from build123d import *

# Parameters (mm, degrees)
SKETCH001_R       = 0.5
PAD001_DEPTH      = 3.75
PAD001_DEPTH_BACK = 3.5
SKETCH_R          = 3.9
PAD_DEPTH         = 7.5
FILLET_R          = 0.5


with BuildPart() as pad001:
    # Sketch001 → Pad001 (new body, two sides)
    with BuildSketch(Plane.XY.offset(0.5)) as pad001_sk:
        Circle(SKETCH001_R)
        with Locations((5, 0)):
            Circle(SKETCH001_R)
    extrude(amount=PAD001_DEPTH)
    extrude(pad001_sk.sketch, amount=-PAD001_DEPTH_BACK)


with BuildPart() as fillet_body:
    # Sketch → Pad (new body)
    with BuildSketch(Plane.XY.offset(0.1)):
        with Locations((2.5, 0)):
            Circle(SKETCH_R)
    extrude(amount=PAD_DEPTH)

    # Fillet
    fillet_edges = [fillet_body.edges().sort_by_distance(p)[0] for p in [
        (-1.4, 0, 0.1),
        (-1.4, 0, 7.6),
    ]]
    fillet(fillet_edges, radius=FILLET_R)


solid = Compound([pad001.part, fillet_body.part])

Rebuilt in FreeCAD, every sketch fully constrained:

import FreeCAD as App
import Part
import Sketcher
from FreeCAD import Vector


def edges_at(feature, points):
    """Names of the edges that pass closest to the given points."""
    edges = feature.Shape.Edges
    near = lambda p: min(range(len(edges)), key=lambda i: edges[i].distToShape(Part.Vertex(*p))[0])
    return sorted({f"Edge{near(p) + 1}" for p in points})

doc = App.newDocument("Part")
body = doc.addObject("PartDesign::Body", "Body")
body.AllowCompound = True

# Sketch on XY plane
sketch1 = body.newObject("Sketcher::SketchObject", "Sketch")
sketch1.AttachmentSupport = (doc.getObject("XY_Plane"), [""])
sketch1.MapMode = "FlatFace"
sketch1.AttachmentOffset = App.Placement(Vector(0, 0, 0.5), App.Rotation())
sketch1.addGeometry(Part.Circle(Vector(0, 0, 0), Vector(0, 0, 1), 0.5), False)
sketch1.addGeometry(Part.Circle(Vector(5, 0, 0), Vector(0, 0, 1), 0.5), False)
sketch1.addConstraint(Sketcher.Constraint("Coincident", 0, 3, -1, 1))
sketch1.addConstraint(Sketcher.Constraint("Equal", 0, 1))
sketch1.addConstraint(Sketcher.Constraint("PointOnObject", 1, 3, -1))
sketch1.addConstraint(Sketcher.Constraint("Diameter", 0, 1.0))
sketch1.addConstraint(Sketcher.Constraint("DistanceX", -1, 1, 1, 3, 5.0))
pad1 = body.newObject("PartDesign::Pad", "Pad")
pad1.Profile = sketch1
pad1.Type = "TwoLengths"
pad1.Length = 3.75
pad1.Length2 = 3.5
body2 = doc.addObject("PartDesign::Body", "Body001")

# Sketch on XY plane
sketch2 = body2.newObject("Sketcher::SketchObject", "Sketch001")
sketch2.AttachmentSupport = (doc.getObject("XY_Plane001"), [""])
sketch2.MapMode = "FlatFace"
sketch2.AttachmentOffset = App.Placement(Vector(0, 0, 0.1), App.Rotation())
sketch2.addGeometry(Part.Circle(Vector(2.5, 0, 0), Vector(0, 0, 1), 3.9), False)
sketch2.addConstraint(Sketcher.Constraint("PointOnObject", 0, 3, -1))
sketch2.addConstraint(Sketcher.Constraint("Diameter", 0, 7.8))
sketch2.addConstraint(Sketcher.Constraint("DistanceX", -1, 1, 0, 3, 2.5))
pad2 = body2.newObject("PartDesign::Pad", "Pad001")
pad2.Profile = sketch2
pad2.Length = 7.5
doc.recompute()

fillet = body2.newObject("PartDesign::Fillet", "Fillet")
fillet.Base = (pad2, edges_at(pad2, [(-1.4, 0, 0.1), (-1.4, 0, 7.6)]))
fillet.Radius = 0.5

doc.recompute()
